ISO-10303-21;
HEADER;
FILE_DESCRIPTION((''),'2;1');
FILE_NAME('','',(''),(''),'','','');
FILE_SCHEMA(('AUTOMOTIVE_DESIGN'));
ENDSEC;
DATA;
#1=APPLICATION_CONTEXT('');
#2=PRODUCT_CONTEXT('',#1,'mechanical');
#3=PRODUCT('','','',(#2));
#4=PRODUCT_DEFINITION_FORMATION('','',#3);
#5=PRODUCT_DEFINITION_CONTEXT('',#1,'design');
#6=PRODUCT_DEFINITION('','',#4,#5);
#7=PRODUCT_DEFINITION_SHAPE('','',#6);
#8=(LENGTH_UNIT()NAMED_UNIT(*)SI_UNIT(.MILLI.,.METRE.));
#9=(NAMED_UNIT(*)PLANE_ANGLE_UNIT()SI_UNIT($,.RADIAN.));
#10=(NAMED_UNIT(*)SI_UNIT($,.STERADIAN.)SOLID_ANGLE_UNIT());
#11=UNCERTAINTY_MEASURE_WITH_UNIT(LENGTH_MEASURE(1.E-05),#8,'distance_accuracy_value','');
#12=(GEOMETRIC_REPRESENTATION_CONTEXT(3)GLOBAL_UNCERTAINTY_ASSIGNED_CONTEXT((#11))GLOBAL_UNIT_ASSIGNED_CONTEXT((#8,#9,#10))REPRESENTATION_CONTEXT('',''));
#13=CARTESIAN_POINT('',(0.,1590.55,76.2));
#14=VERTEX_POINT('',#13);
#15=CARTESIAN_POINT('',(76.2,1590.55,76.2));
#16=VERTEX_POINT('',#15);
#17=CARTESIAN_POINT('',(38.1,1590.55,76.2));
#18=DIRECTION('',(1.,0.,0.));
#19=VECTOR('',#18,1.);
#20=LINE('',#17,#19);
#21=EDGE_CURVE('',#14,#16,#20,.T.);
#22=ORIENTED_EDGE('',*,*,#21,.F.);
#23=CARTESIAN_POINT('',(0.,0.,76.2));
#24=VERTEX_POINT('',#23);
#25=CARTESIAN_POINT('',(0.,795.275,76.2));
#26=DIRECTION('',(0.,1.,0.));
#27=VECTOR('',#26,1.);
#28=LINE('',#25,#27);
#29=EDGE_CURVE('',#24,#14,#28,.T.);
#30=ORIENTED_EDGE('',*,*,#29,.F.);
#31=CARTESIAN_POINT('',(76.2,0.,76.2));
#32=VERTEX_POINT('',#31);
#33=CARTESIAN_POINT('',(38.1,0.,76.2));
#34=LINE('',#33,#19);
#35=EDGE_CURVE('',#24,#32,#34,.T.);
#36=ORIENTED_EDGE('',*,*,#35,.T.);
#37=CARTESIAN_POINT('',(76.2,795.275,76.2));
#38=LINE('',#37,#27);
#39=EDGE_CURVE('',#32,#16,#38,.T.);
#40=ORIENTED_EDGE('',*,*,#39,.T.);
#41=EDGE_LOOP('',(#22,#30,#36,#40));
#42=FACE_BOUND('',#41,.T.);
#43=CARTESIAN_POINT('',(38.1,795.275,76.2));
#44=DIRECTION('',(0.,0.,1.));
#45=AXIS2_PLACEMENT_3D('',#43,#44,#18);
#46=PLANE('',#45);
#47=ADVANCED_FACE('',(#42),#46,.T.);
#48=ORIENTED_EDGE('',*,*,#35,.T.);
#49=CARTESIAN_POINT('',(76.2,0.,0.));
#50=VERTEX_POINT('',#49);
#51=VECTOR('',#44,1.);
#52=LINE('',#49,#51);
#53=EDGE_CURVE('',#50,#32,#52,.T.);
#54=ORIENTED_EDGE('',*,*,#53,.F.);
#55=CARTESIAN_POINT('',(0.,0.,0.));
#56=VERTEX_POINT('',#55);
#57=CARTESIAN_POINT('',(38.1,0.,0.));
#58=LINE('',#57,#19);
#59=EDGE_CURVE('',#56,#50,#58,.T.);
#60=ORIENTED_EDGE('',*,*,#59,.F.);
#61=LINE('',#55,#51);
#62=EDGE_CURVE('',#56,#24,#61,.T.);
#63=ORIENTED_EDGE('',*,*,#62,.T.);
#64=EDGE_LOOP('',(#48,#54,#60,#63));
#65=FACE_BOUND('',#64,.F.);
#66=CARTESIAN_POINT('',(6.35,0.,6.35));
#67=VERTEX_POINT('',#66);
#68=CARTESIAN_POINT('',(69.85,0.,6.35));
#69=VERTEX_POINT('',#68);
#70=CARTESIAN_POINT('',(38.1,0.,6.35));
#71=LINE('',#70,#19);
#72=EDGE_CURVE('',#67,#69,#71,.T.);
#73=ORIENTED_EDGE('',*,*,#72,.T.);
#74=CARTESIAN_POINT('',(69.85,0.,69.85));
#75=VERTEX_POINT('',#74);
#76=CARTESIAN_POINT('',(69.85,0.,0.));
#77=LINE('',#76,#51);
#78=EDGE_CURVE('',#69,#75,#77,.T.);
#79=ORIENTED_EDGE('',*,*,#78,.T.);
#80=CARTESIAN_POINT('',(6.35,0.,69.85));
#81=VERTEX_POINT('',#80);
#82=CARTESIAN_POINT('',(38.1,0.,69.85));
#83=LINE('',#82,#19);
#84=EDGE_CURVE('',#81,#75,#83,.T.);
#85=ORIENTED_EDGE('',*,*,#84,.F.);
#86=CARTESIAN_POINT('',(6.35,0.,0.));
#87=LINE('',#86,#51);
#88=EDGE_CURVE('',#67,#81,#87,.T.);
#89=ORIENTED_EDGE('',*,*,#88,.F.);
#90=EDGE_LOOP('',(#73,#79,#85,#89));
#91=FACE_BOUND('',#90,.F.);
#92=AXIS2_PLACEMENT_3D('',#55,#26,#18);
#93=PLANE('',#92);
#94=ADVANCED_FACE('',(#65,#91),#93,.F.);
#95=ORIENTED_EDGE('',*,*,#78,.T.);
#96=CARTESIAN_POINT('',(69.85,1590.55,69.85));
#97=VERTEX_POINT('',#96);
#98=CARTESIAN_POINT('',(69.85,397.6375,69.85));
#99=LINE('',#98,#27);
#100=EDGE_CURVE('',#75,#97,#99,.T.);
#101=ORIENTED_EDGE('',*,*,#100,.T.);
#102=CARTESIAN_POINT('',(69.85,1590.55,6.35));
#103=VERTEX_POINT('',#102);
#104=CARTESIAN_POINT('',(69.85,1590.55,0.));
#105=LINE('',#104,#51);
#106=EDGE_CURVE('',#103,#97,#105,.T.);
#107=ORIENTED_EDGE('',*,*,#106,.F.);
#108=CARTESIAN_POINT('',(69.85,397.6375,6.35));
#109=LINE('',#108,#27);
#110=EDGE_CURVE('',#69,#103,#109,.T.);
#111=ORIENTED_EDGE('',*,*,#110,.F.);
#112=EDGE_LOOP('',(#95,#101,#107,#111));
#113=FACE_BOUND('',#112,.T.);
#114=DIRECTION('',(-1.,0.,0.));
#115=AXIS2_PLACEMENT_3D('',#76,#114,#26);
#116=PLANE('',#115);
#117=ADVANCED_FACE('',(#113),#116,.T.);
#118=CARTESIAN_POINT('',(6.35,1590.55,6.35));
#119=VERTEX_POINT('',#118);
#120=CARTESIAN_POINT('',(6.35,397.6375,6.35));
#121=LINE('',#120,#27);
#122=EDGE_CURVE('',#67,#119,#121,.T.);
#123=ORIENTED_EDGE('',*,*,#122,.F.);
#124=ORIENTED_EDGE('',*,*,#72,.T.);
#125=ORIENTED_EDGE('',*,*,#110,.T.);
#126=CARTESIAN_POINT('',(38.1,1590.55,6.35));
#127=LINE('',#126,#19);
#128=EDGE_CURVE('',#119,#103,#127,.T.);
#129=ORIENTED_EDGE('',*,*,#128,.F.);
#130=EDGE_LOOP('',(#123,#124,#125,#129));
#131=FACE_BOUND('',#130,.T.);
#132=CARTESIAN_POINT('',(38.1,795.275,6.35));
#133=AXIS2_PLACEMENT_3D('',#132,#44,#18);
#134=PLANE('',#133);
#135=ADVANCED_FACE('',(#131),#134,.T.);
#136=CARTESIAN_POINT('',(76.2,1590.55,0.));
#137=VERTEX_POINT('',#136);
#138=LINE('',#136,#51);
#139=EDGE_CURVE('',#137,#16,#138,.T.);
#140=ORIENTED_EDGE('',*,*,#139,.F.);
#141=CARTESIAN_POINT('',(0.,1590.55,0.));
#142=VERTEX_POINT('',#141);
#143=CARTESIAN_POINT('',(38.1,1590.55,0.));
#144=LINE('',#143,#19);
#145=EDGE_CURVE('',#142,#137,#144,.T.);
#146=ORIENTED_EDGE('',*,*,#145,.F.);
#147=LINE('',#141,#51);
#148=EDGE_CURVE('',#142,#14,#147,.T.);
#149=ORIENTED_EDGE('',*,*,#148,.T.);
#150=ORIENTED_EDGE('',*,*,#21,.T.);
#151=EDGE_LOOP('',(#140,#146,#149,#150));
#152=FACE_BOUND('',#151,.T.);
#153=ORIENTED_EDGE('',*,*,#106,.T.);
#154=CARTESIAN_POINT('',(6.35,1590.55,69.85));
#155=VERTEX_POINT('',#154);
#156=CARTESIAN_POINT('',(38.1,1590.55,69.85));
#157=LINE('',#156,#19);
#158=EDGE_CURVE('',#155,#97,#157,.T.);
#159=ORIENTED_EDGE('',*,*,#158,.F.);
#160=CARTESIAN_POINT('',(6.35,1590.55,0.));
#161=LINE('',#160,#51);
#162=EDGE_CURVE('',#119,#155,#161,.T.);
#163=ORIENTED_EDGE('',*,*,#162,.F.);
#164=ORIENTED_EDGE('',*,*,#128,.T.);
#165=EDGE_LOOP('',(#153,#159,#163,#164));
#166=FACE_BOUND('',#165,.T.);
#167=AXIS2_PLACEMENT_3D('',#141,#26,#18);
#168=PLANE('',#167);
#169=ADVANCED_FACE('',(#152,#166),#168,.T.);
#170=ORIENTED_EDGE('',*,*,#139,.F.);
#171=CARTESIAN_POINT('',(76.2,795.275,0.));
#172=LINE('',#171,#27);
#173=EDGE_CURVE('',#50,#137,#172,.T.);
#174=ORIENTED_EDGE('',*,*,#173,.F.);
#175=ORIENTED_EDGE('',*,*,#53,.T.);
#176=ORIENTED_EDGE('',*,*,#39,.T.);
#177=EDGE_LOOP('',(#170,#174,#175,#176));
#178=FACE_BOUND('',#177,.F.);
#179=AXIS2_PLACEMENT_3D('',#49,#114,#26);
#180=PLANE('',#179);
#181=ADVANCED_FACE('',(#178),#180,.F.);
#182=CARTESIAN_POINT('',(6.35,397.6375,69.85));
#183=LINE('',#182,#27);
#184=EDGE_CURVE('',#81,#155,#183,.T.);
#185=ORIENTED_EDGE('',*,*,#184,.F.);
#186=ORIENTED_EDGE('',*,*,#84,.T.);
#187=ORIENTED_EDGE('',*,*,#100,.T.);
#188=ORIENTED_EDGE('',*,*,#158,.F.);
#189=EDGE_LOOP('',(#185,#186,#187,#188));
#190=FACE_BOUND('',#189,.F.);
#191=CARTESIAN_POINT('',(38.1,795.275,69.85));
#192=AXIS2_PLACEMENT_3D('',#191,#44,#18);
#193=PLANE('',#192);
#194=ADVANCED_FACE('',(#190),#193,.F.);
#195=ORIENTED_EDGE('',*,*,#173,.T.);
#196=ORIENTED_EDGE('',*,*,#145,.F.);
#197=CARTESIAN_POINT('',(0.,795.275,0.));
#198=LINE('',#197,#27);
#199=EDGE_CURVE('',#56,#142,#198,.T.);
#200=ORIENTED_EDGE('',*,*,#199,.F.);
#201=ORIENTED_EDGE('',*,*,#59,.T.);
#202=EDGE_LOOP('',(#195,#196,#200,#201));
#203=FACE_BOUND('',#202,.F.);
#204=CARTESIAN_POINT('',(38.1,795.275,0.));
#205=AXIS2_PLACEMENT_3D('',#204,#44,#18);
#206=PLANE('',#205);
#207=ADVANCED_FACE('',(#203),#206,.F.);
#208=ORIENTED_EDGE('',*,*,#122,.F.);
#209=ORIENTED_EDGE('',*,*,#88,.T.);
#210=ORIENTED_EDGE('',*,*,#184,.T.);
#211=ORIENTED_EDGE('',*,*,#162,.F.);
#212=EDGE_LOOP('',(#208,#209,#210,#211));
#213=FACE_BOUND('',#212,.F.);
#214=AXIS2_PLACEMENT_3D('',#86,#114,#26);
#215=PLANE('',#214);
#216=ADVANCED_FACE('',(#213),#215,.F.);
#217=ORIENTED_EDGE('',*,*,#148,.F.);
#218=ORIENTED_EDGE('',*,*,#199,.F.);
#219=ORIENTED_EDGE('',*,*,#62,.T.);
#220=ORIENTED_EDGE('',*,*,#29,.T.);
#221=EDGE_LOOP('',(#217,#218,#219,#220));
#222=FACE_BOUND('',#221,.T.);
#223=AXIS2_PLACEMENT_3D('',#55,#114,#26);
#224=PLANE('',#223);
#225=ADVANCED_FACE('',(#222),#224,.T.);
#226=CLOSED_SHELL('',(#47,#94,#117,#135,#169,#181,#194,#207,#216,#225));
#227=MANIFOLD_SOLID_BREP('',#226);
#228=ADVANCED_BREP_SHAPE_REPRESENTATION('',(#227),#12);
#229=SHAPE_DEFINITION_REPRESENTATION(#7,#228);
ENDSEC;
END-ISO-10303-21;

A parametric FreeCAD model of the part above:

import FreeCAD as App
import Part
import Sketcher
Q = App.Units.Quantity


def faces_at(feature, points):
    """Names of the faces that lie closest to the given points."""
    faces = feature.Shape.Faces
    near = lambda p: min(range(len(faces)), key=lambda i: faces[i].distToShape(Part.Vertex(*p))[0])
    return sorted({f"Face{near(p) + 1}" for p in points})

doc = App.newDocument("Part")
body = doc.addObject("PartDesign::Body", "Body")

sketch1 = doc.addObject("Sketcher::SketchObject", "Sketch")
body.addObject(sketch1)
sketch1.AttachmentSupport = (doc.XY_Plane, [""])
sketch1.MapMode = "FlatFace"
sketch1.addGeometry([
    Part.LineSegment(App.Vector(0, 1591, 0), App.Vector(0, 0, 0)),
    Part.LineSegment(App.Vector(0, 0, 0), App.Vector(76, 0, 0)),
    Part.LineSegment(App.Vector(76, 0, 0), App.Vector(76, 1591, 0)),
    Part.LineSegment(App.Vector(76, 1591, 0), App.Vector(0, 1591, 0)),
], False)
sketch1.addConstraint([
    Sketcher.Constraint("Coincident", 0, 2, 1, 1),
    Sketcher.Constraint("Coincident", 1, 2, 2, 1),
    Sketcher.Constraint("Coincident", 2, 2, 3, 1),
    Sketcher.Constraint("Coincident", 3, 2, 0, 1),
    Sketcher.Constraint("Vertical", 0),
    Sketcher.Constraint("Horizontal", 1),
    Sketcher.Constraint("Vertical", 2),
    Sketcher.Constraint("Horizontal", 3),
    Sketcher.Constraint("Coincident", 0, 2, -1, 1),
    Sketcher.Constraint("DistanceX", 1, 1, 1, 2, Q("3 in")),
    Sketcher.Constraint("DistanceY", 0, 2, 0, 1, Q("1590.55 mm")),
])
pad1 = doc.addObject("PartDesign::Pad", "Pad")
body.addObject(pad1)
pad1.Profile = sketch1
pad1.Length = Q("3 in")
doc.recompute()

thickness = doc.addObject("PartDesign::Thickness", "Thickness")
body.addObject(thickness)
thickness.Base = (pad1, faces_at(pad1, [(38.1, 0, 38.1), (38.1, 1590.55, 38.1)]))
thickness.Value = Q("0.25 in")
thickness.Reversed = True
thickness.Join = "Arc"

doc.recompute()
